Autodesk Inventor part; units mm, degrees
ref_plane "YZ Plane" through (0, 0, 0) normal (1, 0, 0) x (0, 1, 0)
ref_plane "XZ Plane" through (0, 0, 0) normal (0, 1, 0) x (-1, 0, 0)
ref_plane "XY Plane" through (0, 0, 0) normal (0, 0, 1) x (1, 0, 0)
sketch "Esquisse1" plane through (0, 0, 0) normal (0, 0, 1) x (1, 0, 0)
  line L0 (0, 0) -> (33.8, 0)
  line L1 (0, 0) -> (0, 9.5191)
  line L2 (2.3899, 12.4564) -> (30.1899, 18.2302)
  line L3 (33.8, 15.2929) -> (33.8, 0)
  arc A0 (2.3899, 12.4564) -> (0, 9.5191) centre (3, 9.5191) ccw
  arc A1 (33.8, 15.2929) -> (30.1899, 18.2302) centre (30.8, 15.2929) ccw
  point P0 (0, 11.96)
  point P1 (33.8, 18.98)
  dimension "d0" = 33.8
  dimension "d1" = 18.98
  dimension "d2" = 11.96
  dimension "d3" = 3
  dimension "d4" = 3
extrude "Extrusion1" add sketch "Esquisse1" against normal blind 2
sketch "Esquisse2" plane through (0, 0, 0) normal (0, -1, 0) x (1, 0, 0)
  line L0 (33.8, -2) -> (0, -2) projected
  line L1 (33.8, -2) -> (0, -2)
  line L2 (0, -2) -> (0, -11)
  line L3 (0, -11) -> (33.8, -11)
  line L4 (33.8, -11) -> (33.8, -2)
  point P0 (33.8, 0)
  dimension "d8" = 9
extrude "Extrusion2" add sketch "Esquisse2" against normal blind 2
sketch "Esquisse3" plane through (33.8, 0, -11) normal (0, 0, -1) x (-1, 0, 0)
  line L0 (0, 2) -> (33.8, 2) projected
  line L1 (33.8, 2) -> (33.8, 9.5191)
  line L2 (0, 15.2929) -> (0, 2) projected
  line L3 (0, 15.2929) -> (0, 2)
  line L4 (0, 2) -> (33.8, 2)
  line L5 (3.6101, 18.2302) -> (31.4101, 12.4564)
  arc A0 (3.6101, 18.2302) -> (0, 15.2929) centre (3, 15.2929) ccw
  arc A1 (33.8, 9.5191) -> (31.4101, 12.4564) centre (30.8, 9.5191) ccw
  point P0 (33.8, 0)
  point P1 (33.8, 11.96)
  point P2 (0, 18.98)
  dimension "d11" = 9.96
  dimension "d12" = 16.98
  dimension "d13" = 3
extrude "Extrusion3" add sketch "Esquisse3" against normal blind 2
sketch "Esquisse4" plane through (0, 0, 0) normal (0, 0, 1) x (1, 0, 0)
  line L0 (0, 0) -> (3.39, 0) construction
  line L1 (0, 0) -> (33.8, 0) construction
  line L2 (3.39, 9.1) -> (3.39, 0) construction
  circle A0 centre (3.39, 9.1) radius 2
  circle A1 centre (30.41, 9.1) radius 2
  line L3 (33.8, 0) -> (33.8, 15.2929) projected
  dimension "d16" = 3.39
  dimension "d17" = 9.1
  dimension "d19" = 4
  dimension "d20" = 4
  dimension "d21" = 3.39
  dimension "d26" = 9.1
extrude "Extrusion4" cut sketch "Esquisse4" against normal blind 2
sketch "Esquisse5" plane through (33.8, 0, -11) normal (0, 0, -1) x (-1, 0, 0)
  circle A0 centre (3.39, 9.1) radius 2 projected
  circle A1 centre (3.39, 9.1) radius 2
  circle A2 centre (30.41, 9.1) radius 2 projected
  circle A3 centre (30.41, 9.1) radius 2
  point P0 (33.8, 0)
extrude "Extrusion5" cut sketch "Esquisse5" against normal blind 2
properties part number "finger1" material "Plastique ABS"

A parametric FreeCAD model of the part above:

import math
import FreeCAD as App
import Part
import Sketcher

doc = App.newDocument("Part")
body = doc.addObject("PartDesign::Body", "Body")

sketch1 = body.newObject("Sketcher::SketchObject", "Sketch")
sketch1.AttachmentSupport = (doc.getObject("XY_Plane"), [""])
sketch1.MapMode = "FlatFace"
sketch1.addGeometry(Part.LineSegment(App.Vector(0, 9.5, 0), App.Vector(0, 0, 0)), False)
sketch1.addGeometry(Part.LineSegment(App.Vector(0, 0, 0), App.Vector(33.8, 0, 0)), False)
sketch1.addGeometry(Part.LineSegment(App.Vector(33.8, 0, 0), App.Vector(33.8, 15.3, 0)), False)
sketch1.addGeometry(Part.ArcOfCircle(Part.Circle(App.Vector(30.8, 15.3, 0), App.Vector(0, 0, 1), 3), math.radians(0), math.radians(102)), False)
sketch1.addGeometry(Part.LineSegment(App.Vector(30.2, 18.2, 0), App.Vector(2.4, 12.5, 0)), False)
sketch1.addGeometry(Part.ArcOfCircle(Part.Circle(App.Vector(3, 9.5, 0), App.Vector(0, 0, 1), 3), math.radians(102), math.radians(180)), False)
sketch1.addConstraint(Sketcher.Constraint("Coincident", 0, 2, 1, 1))
sketch1.addConstraint(Sketcher.Constraint("Coincident", 1, 2, 2, 1))
sketch1.addConstraint(Sketcher.Constraint("Tangent", 2, 2, 3, 1))
sketch1.addConstraint(Sketcher.Constraint("Tangent", 3, 2, 4, 1))
sketch1.addConstraint(Sketcher.Constraint("Tangent", 4, 2, 5, 1))
sketch1.addConstraint(Sketcher.Constraint("Tangent", 5, 2, 0, 1))
sketch1.addConstraint(Sketcher.Constraint("Vertical", 0))
sketch1.addConstraint(Sketcher.Constraint("Horizontal", 1))
sketch1.addConstraint(Sketcher.Constraint("Vertical", 2))
sketch1.addConstraint(Sketcher.Constraint("Coincident", 0, 2, -1, 1))
sketch1.addConstraint(Sketcher.Constraint("Equal", 3, 5))
sketch1.addConstraint(Sketcher.Constraint("Radius", 3, 3.0))
sketch1.addConstraint(Sketcher.Constraint("DistanceX", 1, 1, 1, 2, 33.8))
sketch1.addConstraint(Sketcher.Constraint("DistanceY", 0, 2, 0, 1, 9.519))
sketch1.addConstraint(Sketcher.Constraint("DistanceY", 2, 1, 2, 2, 15.293))
pad1 = body.newObject("PartDesign::Pad", "Pad")
pad1.Profile = sketch1
pad1.Length = 2
pad1.Reversed = True

sketch2 = body.newObject("Sketcher::SketchObject", "Sketch001")
sketch2.AttachmentSupport = (doc.getObject("XZ_Plane"), [""])
sketch2.MapMode = "FlatFace"
sketch2.addGeometry(Part.LineSegment(App.Vector(34, -11, 0), App.Vector(34, -2, 0)), False)
sketch2.addGeometry(Part.LineSegment(App.Vector(34, -2, 0), App.Vector(0, -2, 0)), False)
sketch2.addGeometry(Part.LineSegment(App.Vector(0, -2, 0), App.Vector(0, -11, 0)), False)
sketch2.addGeometry(Part.LineSegment(App.Vector(0, -11, 0), App.Vector(34, -11, 0)), False)
sketch2.addConstraint(Sketcher.Constraint("Coincident", 0, 2, 1, 1))
sketch2.addConstraint(Sketcher.Constraint("Coincident", 1, 2, 2, 1))
sketch2.addConstraint(Sketcher.Constraint("Coincident", 2, 2, 3, 1))
sketch2.addConstraint(Sketcher.Constraint("Coincident", 3, 2, 0, 1))
sketch2.addConstraint(Sketcher.Constraint("Vertical", 0))
sketch2.addConstraint(Sketcher.Constraint("Horizontal", 1))
sketch2.addConstraint(Sketcher.Constraint("Vertical", 2))
sketch2.addConstraint(Sketcher.Constraint("Horizontal", 3))
sketch2.addConstraint(Sketcher.Constraint("PointOnObject", 1, 2, -2))
sketch2.addConstraint(Sketcher.Constraint("DistanceY", 0, 1, 0, 2, 9.0))
sketch2.addConstraint(Sketcher.Constraint("DistanceX", 1, 2, 1, 1, 33.8))
sketch2.addConstraint(Sketcher.Constraint("DistanceY", 0, 2, -1, 1, 2.0))
pad2 = body.newObject("PartDesign::Pad", "Pad001")
pad2.Profile = sketch2
pad2.Length = 2
pad2.Reversed = True

sketch3 = body.newObject("Sketcher::SketchObject", "Sketch002")
sketch3.AttachmentSupport = (doc.getObject("XY_Plane"), [""])
sketch3.MapMode = "FlatFace"
sketch3.AttachmentOffset = App.Placement(App.Vector(0, 0, -11), App.Rotation())
sketch3.addGeometry(Part.LineSegment(App.Vector(33.8, 15.3, 0), App.Vector(33.8, 2, 0)), False)
sketch3.addGeometry(Part.LineSegment(App.Vector(33.8, 2, 0), App.Vector(0, 2, 0)), False)
sketch3.addGeometry(Part.LineSegment(App.Vector(0, 2, 0), App.Vector(0, 9.5, 0)), False)
sketch3.addGeometry(Part.ArcOfCircle(Part.Circle(App.Vector(3, 9.5, 0), App.Vector(0, 0, 1), 3), math.radians(102), math.radians(180)), False)
sketch3.addGeometry(Part.LineSegment(App.Vector(2.4, 12.5, 0), App.Vector(30.2, 18.2, 0)), False)
sketch3.addGeometry(Part.ArcOfCircle(Part.Circle(App.Vector(30.8, 15.3, 0), App.Vector(0, 0, 1), 3), math.radians(0), math.radians(102)), False)
sketch3.addConstraint(Sketcher.Constraint("Coincident", 0, 2, 1, 1))
sketch3.addConstraint(Sketcher.Constraint("Coincident", 1, 2, 2, 1))
sketch3.addConstraint(Sketcher.Constraint("Tangent", 2, 2, 3, 2))
sketch3.addConstraint(Sketcher.Constraint("Tangent", 3, 1, 4, 1))
sketch3.addConstraint(Sketcher.Constraint("Tangent", 4, 2, 5, 2))
sketch3.addConstraint(Sketcher.Constraint("Tangent", 5, 1, 0, 1))
sketch3.addConstraint(Sketcher.Constraint("Vertical", 0))
sketch3.addConstraint(Sketcher.Constraint("Horizontal", 1))
sketch3.addConstraint(Sketcher.Constraint("Vertical", 2))
sketch3.addConstraint(Sketcher.Constraint("Equal", 3, 5))
sketch3.addConstraint(Sketcher.Constraint("PointOnObject", 1, 2, -2))
sketch3.addConstraint(Sketcher.Constraint("Radius", 3, 3.0))
sketch3.addConstraint(Sketcher.Constraint("DistanceX", 1, 2, 1, 1, 33.8))
sketch3.addConstraint(Sketcher.Constraint("DistanceY", -1, 1, 0, 2, 2.0))
sketch3.addConstraint(Sketcher.Constraint("DistanceY", 0, 2, 0, 1, 13.293))
sketch3.addConstraint(Sketcher.Constraint("DistanceY", 2, 1, 2, 2, 7.519))
pad3 = body.newObject("PartDesign::Pad", "Pad002")
pad3.Profile = sketch3
pad3.Length = 2

sketch4 = body.newObject("Sketcher::SketchObject", "Sketch003")
sketch4.AttachmentSupport = (doc.getObject("XY_Plane"), [""])
sketch4.MapMode = "FlatFace"
sketch4.addGeometry(Part.Circle(App.Vector(3.4, 9.1, 0), App.Vector(0, 0, 1), 2), False)
sketch4.addGeometry(Part.Circle(App.Vector(30.4, 9.1, 0), App.Vector(0, 0, 1), 2), False)
sketch4.addConstraint(Sketcher.Constraint("Equal", 0, 1))
sketch4.addConstraint(Sketcher.Constraint("Horizontal", 0, 3, 1, 3))
sketch4.addConstraint(Sketcher.Constraint("Diameter", 0, 4.0))
sketch4.addConstraint(Sketcher.Constraint("DistanceY", -1, 1, 0, 3, 9.1))
sketch4.addConstraint(Sketcher.Constraint("DistanceX", -1, 1, 0, 3, 3.39))
sketch4.addConstraint(Sketcher.Constraint("DistanceX", -1, 1, 1, 3, 30.41))
pocket1 = body.newObject("PartDesign::Pocket", "Pocket")
pocket1.Profile = sketch4
pocket1.Length = 2

sketch5 = body.newObject("Sketcher::SketchObject", "Sketch004")
sketch5.AttachmentSupport = (doc.getObject("XY_Plane"), [""])
sketch5.MapMode = "FlatFace"
sketch5.AttachmentOffset = App.Placement(App.Vector(0, 0, -11), App.Rotation())
sketch5.addGeometry(Part.Circle(App.Vector(30.4, 9.1, 0), App.Vector(0, 0, 1), 2), False)
sketch5.addGeometry(Part.Circle(App.Vector(3.4, 9.1, 0), App.Vector(0, 0, 1), 2), False)
sketch5.addConstraint(Sketcher.Constraint("Equal", 0, 1))
sketch5.addConstraint(Sketcher.Constraint("Horizontal", 0, 3, 1, 3))
sketch5.addConstraint(Sketcher.Constraint("Diameter", 0, 4.0))
sketch5.addConstraint(Sketcher.Constraint("DistanceY", -1, 1, 0, 3, 9.1))
sketch5.addConstraint(Sketcher.Constraint("DistanceX", -1, 1, 0, 3, 30.41))
sketch5.addConstraint(Sketcher.Constraint("DistanceX", -1, 1, 1, 3, 3.39))
pocket2 = body.newObject("PartDesign::Pocket", "Pocket001")
pocket2.Profile = sketch5
pocket2.Length = 2
pocket2.Reversed = True

doc.recompute()
